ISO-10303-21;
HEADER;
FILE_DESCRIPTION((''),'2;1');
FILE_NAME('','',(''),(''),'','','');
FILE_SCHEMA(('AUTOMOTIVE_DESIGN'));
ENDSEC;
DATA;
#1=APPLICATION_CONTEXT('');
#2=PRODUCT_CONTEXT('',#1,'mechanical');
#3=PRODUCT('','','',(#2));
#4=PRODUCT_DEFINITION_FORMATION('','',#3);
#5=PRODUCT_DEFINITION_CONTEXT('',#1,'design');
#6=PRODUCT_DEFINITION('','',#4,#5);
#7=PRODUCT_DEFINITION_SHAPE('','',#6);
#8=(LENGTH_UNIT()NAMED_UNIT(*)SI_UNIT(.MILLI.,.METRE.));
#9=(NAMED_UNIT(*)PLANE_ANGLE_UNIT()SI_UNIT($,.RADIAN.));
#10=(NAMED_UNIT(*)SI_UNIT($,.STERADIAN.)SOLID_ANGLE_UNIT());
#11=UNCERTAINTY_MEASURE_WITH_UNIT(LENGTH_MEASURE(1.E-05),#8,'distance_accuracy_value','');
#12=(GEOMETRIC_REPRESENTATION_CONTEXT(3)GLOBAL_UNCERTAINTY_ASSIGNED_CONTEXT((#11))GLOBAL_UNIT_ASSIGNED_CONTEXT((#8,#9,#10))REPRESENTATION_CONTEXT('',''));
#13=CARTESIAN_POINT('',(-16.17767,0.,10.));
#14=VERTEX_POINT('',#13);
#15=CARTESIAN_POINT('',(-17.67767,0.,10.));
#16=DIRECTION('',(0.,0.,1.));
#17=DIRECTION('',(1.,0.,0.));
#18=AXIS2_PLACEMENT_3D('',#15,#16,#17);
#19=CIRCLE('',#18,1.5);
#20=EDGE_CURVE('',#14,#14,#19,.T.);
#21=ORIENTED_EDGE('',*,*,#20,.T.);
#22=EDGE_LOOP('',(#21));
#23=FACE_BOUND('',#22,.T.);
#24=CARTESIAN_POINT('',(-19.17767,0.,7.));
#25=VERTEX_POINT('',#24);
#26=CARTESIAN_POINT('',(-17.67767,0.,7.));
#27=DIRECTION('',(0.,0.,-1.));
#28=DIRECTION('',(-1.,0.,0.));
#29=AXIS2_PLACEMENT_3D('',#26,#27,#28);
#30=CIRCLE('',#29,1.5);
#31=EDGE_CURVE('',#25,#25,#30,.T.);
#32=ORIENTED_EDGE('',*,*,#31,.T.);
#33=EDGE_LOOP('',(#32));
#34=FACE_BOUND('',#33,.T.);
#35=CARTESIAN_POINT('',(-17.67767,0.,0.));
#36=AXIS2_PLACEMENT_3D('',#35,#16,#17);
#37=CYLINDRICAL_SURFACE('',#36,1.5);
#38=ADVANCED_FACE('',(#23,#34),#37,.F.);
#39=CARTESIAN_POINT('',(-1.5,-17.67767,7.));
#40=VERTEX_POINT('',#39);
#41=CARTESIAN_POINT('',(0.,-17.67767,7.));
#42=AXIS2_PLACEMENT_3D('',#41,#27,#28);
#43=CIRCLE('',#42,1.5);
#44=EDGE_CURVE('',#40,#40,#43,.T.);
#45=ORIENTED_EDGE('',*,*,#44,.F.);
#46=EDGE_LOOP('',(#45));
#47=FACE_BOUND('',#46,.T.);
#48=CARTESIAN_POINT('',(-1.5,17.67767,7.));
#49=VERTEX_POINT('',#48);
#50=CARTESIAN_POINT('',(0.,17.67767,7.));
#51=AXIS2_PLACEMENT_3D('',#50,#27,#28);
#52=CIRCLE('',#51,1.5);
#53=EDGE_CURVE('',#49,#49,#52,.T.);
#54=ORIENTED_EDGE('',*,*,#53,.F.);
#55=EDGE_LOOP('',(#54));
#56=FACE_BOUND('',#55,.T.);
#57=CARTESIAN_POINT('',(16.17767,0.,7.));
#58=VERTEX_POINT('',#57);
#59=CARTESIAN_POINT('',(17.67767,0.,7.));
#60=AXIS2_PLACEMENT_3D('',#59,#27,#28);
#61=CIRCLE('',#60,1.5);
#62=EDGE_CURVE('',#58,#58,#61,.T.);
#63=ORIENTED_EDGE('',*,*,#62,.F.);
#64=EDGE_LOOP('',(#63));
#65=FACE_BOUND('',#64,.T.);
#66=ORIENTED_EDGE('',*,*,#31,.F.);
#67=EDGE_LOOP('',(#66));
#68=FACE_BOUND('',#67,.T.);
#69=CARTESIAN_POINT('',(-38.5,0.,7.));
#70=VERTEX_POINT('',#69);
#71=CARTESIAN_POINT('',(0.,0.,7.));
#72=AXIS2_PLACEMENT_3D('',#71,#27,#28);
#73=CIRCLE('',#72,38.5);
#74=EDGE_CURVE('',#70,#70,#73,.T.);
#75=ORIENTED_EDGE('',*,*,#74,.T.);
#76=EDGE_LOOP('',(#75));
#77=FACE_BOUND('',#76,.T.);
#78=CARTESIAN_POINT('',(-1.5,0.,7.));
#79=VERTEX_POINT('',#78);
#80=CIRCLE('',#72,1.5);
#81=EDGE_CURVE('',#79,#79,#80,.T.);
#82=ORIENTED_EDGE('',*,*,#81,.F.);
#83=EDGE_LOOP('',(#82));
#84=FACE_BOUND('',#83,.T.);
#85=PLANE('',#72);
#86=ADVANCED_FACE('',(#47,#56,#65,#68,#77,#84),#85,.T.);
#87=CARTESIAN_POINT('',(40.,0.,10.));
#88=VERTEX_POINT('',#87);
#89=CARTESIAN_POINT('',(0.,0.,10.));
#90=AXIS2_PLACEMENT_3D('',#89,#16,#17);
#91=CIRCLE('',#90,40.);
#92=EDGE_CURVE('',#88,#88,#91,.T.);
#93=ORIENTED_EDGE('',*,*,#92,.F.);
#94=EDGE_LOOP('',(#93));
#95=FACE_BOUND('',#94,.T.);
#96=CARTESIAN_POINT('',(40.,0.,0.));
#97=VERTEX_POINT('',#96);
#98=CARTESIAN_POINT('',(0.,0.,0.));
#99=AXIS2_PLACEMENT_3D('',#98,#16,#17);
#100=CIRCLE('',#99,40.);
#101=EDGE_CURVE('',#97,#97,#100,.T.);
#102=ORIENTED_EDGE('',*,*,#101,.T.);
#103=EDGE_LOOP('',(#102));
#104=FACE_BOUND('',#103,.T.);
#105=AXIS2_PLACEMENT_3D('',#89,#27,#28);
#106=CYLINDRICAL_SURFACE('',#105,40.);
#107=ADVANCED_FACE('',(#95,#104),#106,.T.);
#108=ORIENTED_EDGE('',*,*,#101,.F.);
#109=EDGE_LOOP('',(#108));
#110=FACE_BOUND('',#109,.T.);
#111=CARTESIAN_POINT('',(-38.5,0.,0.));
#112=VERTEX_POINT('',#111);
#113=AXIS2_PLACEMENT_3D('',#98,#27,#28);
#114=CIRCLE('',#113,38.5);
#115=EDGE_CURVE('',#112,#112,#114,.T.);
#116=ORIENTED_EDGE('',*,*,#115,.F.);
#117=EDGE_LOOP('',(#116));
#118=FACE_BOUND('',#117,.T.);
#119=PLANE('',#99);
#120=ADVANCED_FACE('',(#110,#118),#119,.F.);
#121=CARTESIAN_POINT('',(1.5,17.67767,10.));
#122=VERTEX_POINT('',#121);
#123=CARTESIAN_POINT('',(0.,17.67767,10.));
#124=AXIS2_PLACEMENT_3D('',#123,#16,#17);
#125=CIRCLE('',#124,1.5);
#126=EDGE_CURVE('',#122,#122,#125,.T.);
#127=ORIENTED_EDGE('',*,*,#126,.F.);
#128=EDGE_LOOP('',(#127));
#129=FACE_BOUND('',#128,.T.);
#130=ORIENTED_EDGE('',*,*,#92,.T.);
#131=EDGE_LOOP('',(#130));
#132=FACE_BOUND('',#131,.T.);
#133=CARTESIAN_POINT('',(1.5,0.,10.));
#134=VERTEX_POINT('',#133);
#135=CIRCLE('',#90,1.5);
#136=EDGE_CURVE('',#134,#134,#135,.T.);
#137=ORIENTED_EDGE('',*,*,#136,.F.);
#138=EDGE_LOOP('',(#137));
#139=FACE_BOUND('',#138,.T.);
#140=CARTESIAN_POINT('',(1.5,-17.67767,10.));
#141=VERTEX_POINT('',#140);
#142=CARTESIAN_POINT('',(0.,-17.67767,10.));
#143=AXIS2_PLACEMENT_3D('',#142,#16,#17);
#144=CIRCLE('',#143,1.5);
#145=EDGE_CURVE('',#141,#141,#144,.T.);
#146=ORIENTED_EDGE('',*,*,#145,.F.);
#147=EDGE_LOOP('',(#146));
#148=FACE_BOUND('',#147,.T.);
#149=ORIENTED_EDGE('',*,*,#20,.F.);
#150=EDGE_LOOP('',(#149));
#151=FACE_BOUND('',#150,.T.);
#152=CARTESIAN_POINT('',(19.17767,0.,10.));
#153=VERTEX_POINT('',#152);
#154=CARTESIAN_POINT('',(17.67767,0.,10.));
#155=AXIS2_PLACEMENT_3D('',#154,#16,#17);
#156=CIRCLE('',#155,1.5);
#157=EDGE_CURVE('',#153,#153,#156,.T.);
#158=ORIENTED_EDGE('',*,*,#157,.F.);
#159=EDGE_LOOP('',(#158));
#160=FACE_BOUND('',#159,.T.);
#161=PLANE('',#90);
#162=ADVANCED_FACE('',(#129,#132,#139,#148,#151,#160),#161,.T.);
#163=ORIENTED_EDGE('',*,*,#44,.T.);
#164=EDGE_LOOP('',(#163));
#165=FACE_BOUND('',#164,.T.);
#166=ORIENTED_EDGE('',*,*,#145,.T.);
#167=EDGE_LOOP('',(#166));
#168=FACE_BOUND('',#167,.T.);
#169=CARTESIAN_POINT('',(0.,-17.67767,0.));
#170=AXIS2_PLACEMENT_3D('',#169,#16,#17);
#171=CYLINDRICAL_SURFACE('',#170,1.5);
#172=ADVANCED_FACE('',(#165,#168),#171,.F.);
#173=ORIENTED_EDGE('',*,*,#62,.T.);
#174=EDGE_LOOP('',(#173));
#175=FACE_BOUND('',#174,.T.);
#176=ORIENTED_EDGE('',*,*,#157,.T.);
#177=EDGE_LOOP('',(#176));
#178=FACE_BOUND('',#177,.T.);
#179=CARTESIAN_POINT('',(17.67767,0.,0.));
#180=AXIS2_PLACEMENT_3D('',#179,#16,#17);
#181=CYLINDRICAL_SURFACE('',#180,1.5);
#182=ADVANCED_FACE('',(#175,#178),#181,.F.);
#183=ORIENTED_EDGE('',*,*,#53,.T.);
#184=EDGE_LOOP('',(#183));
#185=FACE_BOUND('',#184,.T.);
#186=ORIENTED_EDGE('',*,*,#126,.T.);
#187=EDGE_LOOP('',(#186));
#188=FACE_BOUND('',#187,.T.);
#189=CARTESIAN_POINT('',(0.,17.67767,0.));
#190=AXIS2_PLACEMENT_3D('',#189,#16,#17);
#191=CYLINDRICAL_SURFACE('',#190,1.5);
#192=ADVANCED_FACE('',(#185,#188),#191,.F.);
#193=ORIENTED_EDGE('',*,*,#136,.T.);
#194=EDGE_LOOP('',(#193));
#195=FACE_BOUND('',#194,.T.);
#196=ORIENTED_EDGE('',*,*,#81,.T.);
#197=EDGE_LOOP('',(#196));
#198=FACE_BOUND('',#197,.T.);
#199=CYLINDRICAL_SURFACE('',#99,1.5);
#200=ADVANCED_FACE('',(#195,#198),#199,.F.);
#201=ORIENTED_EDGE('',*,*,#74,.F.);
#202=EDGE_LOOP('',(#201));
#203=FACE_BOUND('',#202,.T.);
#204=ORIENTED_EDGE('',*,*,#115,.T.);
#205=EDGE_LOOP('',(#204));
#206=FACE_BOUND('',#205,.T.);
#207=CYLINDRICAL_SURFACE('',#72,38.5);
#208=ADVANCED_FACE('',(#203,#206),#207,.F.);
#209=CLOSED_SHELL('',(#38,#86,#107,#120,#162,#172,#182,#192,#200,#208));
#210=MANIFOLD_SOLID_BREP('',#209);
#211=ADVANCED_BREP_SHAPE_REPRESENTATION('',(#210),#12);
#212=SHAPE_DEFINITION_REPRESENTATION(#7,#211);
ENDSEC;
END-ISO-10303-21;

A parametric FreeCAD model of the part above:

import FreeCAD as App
import Part
import Sketcher
from FreeCAD import Vector

doc = App.newDocument("Part")
body = doc.addObject("PartDesign::Body", "Body")

sketch1 = body.newObject("Sketcher::SketchObject", "Sketch")
sketch1.AttachmentSupport = (doc.getObject("XY_Plane"), [""])
sketch1.MapMode = "FlatFace"
sketch1.addGeometry(Part.Circle(Vector(0, 0, 0), Vector(0, 0, 1), 40), False)
sketch1.addConstraint([
    Sketcher.Constraint("Coincident", 0, 3, -1, 1),
    Sketcher.Constraint("Diameter", 0, 80.0),
])
pad1 = body.newObject("PartDesign::Pad", "Pad")
pad1.Profile = sketch1
pad1.Length = 10

sketch2 = body.newObject("Sketcher::SketchObject", "Sketch001")
sketch2.AttachmentSupport = (doc.getObject("XY_Plane"), [""])
sketch2.MapMode = "FlatFace"
sketch2.addGeometry(Part.Circle(Vector(0, 0, 0), Vector(0, 0, 1), 38), False)
sketch2.addConstraint([
    Sketcher.Constraint("Coincident", 0, 3, -1, 1),
    Sketcher.Constraint("Diameter", 0, 77.0),
])
pocket1 = body.newObject("PartDesign::Pocket", "Pocket")
pocket1.Profile = sketch2
pocket1.Length = 7
pocket1.Reversed = True

sketch3 = body.newObject("Sketcher::SketchObject", "Sketch002")
sketch3.AttachmentSupport = (doc.getObject("XY_Plane"), [""])
sketch3.MapMode = "FlatFace"
sketch3.AttachmentOffset = App.Placement(Vector(0, 0, 10), App.Rotation())
sketch3.addGeometry([
    Part.Circle(Vector(0, 17.7, 0), Vector(0, 0, 1), 1.5),
    Part.Circle(Vector(17.7, 0, 0), Vector(0, 0, 1), 1.5),
    Part.Circle(Vector(0, -17.7, 0), Vector(0, 0, 1), 1.5),
    Part.Circle(Vector(-17.7, 0, 0), Vector(0, 0, 1), 1.5),
    Part.Circle(Vector(0, 0, 0), Vector(0, 0, 1), 1.5),
], False)
sketch3.addConstraint([
    Sketcher.Constraint("Coincident", 4, 3, -1, 1),
    Sketcher.Constraint("Equal", 0, 1),
    Sketcher.Constraint("Equal", 1, 2),
    Sketcher.Constraint("Equal", 2, 3),
    Sketcher.Constraint("Equal", 3, 4),
    Sketcher.Constraint("Symmetric", 0, 3, 2, 3, -1, 1),
    Sketcher.Constraint("Symmetric", 1, 3, 3, 3, -1, 1),
    Sketcher.Constraint("PointOnObject", 0, 3, -2),
    Sketcher.Constraint("PointOnObject", 1, 3, -1),
    Sketcher.Constraint("Diameter", 0, 3.0),
    Sketcher.Constraint("DistanceY", -1, 1, 0, 3, 17.67767),
    Sketcher.Constraint("DistanceX", -1, 1, 1, 3, 17.67767),
])
pocket2 = body.newObject("PartDesign::Pocket", "Pocket001")
pocket2.Profile = sketch3
pocket2.Type = "ThroughAll"

doc.recompute()
